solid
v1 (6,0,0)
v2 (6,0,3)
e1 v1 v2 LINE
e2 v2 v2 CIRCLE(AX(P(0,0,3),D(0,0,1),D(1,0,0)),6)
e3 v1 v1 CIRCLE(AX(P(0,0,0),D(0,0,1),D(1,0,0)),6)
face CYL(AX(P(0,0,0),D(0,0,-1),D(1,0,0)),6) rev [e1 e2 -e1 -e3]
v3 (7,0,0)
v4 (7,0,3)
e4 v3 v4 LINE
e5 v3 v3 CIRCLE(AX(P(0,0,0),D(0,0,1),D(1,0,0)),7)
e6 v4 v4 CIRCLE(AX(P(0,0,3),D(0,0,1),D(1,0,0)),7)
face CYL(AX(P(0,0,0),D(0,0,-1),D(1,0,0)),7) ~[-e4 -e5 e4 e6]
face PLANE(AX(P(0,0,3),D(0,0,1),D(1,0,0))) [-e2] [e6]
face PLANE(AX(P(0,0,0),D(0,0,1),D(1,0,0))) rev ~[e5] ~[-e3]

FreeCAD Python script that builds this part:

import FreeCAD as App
import Part
import Sketcher

V = App.Vector
Q = App.Units.Quantity

doc = App.newDocument("Part")
params = doc.addObject("Spreadsheet::Sheet", "Params")
for row, (alias, value) in enumerate([
    ("sketch1_diameter", "14 mm"),
    ("sketch1_diameter2", "12 mm"),
    ("pad1_length", "3 mm"),
], start=1):
    params.set(f"A{row}", alias)
    params.set(f"B{row}", "=" + value)
    params.setAlias(f"B{row}", alias)

body = doc.addObject("PartDesign::Body", "Body")

# Sketch on XY plane
sketch1 = body.newObject("Sketcher::SketchObject", "Sketch")
sketch1.AttachmentSupport = (doc.getObject("XY_Plane"), [""])
sketch1.MapMode = "FlatFace"
sketch1.addGeometry([
    Part.Circle(V(0, 0, 0), V(0, 0, 1), 7),
    Part.Circle(V(0, 0, 0), V(0, 0, 1), 6),
], False)
sketch1.addConstraint([
    Sketcher.Constraint("Coincident", 0, 3, -1, 1),
    Sketcher.Constraint("Coincident", 1, 3, -1, 1),
    Sketcher.Constraint("Diameter", 0, Q("14 mm")),
    Sketcher.Constraint("Diameter", 1, Q("12 mm")),
])
sketch1.setExpression("Constraints[2]", "Params.sketch1_diameter")
sketch1.setExpression("Constraints[3]", "Params.sketch1_diameter2")
pad1 = body.newObject("PartDesign::Pad", "Pad")
pad1.Profile = sketch1
pad1.setExpression("Length", "Params.pad1_length")

doc.recompute()
